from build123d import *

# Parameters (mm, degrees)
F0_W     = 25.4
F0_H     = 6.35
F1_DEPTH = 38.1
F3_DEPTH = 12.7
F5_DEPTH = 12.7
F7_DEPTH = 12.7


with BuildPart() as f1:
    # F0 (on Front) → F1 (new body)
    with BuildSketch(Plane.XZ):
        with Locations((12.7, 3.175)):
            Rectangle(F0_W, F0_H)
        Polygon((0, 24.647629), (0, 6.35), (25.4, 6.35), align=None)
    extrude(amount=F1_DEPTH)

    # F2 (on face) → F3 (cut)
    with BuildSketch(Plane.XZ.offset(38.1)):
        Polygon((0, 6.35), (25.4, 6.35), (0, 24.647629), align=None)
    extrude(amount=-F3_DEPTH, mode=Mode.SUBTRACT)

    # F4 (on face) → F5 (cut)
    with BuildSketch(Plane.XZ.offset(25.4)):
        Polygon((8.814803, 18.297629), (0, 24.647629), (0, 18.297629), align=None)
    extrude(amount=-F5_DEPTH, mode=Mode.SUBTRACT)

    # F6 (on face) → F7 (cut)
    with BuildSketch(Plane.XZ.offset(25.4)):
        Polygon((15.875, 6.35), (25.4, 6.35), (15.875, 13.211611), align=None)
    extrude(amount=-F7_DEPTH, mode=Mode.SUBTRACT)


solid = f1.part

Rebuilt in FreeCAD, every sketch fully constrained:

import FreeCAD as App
import Part
import Sketcher

V = App.Vector
Q = App.Units.Quantity


def add_polygon(sketch, points):
    """Adds a closed chain of lines whose ends are joined by coincident constraints."""
    first, n = sketch.GeometryCount, len(points)
    for a, b in zip(points, points[1:] + points[:1]):
        sketch.addGeometry(Part.LineSegment(App.Vector(*a, 0), App.Vector(*b, 0)), False)
    for i in range(n):
        sketch.addConstraint(Sketcher.Constraint("Coincident", first + i, 2, first + (i + 1) % n, 1))

doc = App.newDocument("Part")
body = doc.addObject("PartDesign::Body", "Body")

# Sketch on XZ plane
sketch1 = body.newObject("Sketcher::SketchObject", "Sketch")
sketch1.AttachmentSupport = (doc.getObject("XZ_Plane"), [""])
sketch1.MapMode = "FlatFace"
add_polygon(sketch1, [(0, 0), (25, 0), (25, 6), (0, 25)])  # lines 0-3
sketch1.addConstraint([
    Sketcher.Constraint("Horizontal", 0),
    Sketcher.Constraint("Vertical", 1),
    Sketcher.Constraint("Vertical", 3),
    Sketcher.Constraint("Coincident", 3, 2, -1, 1),
    Sketcher.Constraint("DistanceX", 0, 1, 0, 2, Q("1 in")),
    Sketcher.Constraint("DistanceY", 1, 1, 1, 2, Q("0.25 in")),
    Sketcher.Constraint("DistanceY", 3, 2, 3, 1, Q("24.647629 mm")),
])
pad1 = body.newObject("PartDesign::Pad", "Pad")
pad1.Profile = sketch1
pad1.Length = Q("1.5 in")

# Sketch on XZ plane
sketch2 = body.newObject("Sketcher::SketchObject", "Sketch001")
sketch2.AttachmentSupport = (doc.getObject("XZ_Plane"), [""])
sketch2.MapMode = "FlatFace"
sketch2.AttachmentOffset = App.Placement(V(0, 0, 1.5 * 25.4), App.Rotation())
add_polygon(sketch2, [(0, 6), (25, 6), (0, 25)])  # lines 0-2
sketch2.addConstraint([
    Sketcher.Constraint("Horizontal", 0),
    Sketcher.Constraint("Vertical", 2),
    Sketcher.Constraint("PointOnObject", 1, 2, -2),
    Sketcher.Constraint("DistanceX", 0, 1, 0, 2, Q("1 in")),
    Sketcher.Constraint("DistanceY", -1, 1, 0, 2, Q("0.25 in")),
    Sketcher.Constraint("DistanceY", 2, 2, 2, 1, Q("18.297629 mm")),
])
pocket1 = body.newObject("PartDesign::Pocket", "Pocket")
pocket1.Profile = sketch2
pocket1.Length = Q("0.5 in")

# Sketch on XZ plane
sketch3 = body.newObject("Sketcher::SketchObject", "Sketch002")
sketch3.AttachmentSupport = (doc.getObject("XZ_Plane"), [""])
sketch3.MapMode = "FlatFace"
sketch3.AttachmentOffset = App.Placement(V(0, 0, 1 * 25.4), App.Rotation())
add_polygon(sketch3, [(9, 18), (0, 25), (0, 18)])  # lines 0-2
sketch3.addConstraint([
    Sketcher.Constraint("Vertical", 1),
    Sketcher.Constraint("Horizontal", 2),
    Sketcher.Constraint("PointOnObject", 0, 2, -2),
    Sketcher.Constraint("DistanceY", 1, 2, 1, 1, Q("0.25 in")),
    Sketcher.Constraint("Distance", 0, Q("10.863851 mm")),
    Sketcher.Constraint("DistanceY", -1, 1, 0, 2, Q("24.647629 mm")),
])
pocket2 = body.newObject("PartDesign::Pocket", "Pocket001")
pocket2.Profile = sketch3
pocket2.Length = Q("0.5 in")

# Sketch on XZ plane
sketch4 = body.newObject("Sketcher::SketchObject", "Sketch003")
sketch4.AttachmentSupport = (doc.getObject("XZ_Plane"), [""])
sketch4.MapMode = "FlatFace"
sketch4.AttachmentOffset = App.Placement(V(0, 0, 1 * 25.4), App.Rotation())
add_polygon(sketch4, [(16, 6), (25, 6), (16, 13)])  # lines 0-2
sketch4.addConstraint([
    Sketcher.Constraint("Horizontal", 0),
    Sketcher.Constraint("Vertical", 2),
    Sketcher.Constraint("DistanceX", -1, 1, 0, 2, Q("1 in")),
    Sketcher.Constraint("DistanceX", 0, 1, 0, 2, Q("0.375 in")),
    Sketcher.Constraint("DistanceY", -1, 1, 0, 2, Q("0.25 in")),
    Sketcher.Constraint("DistanceY", 2, 2, 2, 1, Q("6.861611 mm")),
])
pocket3 = body.newObject("PartDesign::Pocket", "Pocket002")
pocket3.Profile = sketch4
pocket3.Length = Q("0.5 in")

doc.recompute()
